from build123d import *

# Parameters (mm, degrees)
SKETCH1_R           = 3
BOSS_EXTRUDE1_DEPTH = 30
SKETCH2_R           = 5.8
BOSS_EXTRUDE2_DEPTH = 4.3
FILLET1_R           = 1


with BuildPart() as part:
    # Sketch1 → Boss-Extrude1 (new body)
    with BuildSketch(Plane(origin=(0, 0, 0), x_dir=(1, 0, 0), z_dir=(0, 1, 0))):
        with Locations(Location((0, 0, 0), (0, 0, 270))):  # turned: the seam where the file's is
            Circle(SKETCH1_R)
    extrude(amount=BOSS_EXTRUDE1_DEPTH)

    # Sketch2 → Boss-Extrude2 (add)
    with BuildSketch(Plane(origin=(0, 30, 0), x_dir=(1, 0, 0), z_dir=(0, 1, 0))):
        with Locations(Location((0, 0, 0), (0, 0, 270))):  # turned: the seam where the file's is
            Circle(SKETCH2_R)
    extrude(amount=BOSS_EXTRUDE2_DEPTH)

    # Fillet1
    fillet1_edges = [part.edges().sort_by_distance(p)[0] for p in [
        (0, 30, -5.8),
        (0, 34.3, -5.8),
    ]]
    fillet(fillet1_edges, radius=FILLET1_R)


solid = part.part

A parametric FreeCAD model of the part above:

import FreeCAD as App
import Part
import Sketcher
Q = App.Units.Quantity


def edges_at(feature, points):
    """Names of the edges that pass closest to the given points."""
    edges = feature.Shape.Edges
    near = lambda p: min(range(len(edges)), key=lambda i: edges[i].distToShape(Part.Vertex(*p))[0])
    return sorted({f"Edge{near(p) + 1}" for p in points})

doc = App.newDocument("Part")
params = doc.addObject("Spreadsheet::Sheet", "Params")
for row, (alias, value) in enumerate([
    ("sketch1_diameter", "6 mm"),
    ("pad1_length", "30 mm"),
    ("sketch2_diameter", "11.6 mm"),
    ("pad2_length", "4.3 mm"),
    ("fillet_radius", "1 mm"),
], start=1):
    params.set(f"A{row}", alias)
    params.set(f"B{row}", "=" + value)
    params.setAlias(f"B{row}", alias)

body = doc.addObject("PartDesign::Body", "Body")

# Sketch on XZ plane
sketch1 = doc.addObject("Sketcher::SketchObject", "Sketch")
body.addObject(sketch1)
sketch1.AttachmentSupport = (doc.XZ_Plane, [""])
sketch1.MapMode = "FlatFace"
sketch1.addGeometry(Part.Circle(App.Vector(0, 0, 0), App.Vector(0, 0, 1), 3), False)
sketch1.addConstraint([
    Sketcher.Constraint("Coincident", 0, 3, -1, 1),
    Sketcher.Constraint("Diameter", 0, Q("6 mm")),
])
sketch1.setExpression("Constraints[1]", "Params.sketch1_diameter")
pad1 = doc.addObject("PartDesign::Pad", "Pad")
body.addObject(pad1)
pad1.Profile = sketch1
pad1.setExpression("Length", "Params.pad1_length")
pad1.Reversed = True

# Sketch on XZ plane
sketch2 = doc.addObject("Sketcher::SketchObject", "Sketch001")
body.addObject(sketch2)
sketch2.AttachmentSupport = (doc.XZ_Plane, [""])
sketch2.MapMode = "FlatFace"
sketch2.AttachmentOffset = App.Placement(App.Vector(0, 0, -30), App.Rotation())
sketch2.addGeometry(Part.Circle(App.Vector(0, 0, 0), App.Vector(0, 0, 1), 6), False)
sketch2.addConstraint([
    Sketcher.Constraint("Coincident", 0, 3, -1, 1),
    Sketcher.Constraint("Diameter", 0, Q("11.6 mm")),
])
sketch2.setExpression("Constraints[1]", "Params.sketch2_diameter")
pad2 = doc.addObject("PartDesign::Pad", "Pad001")
body.addObject(pad2)
pad2.Profile = sketch2
pad2.setExpression("Length", "Params.pad2_length")
pad2.Reversed = True
doc.recompute()

fillet = doc.addObject("PartDesign::Fillet", "Fillet")
body.addObject(fillet)
fillet.Base = (pad2, edges_at(pad2, [(0, 30, -5.8), (0, 34.3, -5.8)]))
fillet.setExpression("Radius", "Params.fillet_radius")

doc.recompute()
